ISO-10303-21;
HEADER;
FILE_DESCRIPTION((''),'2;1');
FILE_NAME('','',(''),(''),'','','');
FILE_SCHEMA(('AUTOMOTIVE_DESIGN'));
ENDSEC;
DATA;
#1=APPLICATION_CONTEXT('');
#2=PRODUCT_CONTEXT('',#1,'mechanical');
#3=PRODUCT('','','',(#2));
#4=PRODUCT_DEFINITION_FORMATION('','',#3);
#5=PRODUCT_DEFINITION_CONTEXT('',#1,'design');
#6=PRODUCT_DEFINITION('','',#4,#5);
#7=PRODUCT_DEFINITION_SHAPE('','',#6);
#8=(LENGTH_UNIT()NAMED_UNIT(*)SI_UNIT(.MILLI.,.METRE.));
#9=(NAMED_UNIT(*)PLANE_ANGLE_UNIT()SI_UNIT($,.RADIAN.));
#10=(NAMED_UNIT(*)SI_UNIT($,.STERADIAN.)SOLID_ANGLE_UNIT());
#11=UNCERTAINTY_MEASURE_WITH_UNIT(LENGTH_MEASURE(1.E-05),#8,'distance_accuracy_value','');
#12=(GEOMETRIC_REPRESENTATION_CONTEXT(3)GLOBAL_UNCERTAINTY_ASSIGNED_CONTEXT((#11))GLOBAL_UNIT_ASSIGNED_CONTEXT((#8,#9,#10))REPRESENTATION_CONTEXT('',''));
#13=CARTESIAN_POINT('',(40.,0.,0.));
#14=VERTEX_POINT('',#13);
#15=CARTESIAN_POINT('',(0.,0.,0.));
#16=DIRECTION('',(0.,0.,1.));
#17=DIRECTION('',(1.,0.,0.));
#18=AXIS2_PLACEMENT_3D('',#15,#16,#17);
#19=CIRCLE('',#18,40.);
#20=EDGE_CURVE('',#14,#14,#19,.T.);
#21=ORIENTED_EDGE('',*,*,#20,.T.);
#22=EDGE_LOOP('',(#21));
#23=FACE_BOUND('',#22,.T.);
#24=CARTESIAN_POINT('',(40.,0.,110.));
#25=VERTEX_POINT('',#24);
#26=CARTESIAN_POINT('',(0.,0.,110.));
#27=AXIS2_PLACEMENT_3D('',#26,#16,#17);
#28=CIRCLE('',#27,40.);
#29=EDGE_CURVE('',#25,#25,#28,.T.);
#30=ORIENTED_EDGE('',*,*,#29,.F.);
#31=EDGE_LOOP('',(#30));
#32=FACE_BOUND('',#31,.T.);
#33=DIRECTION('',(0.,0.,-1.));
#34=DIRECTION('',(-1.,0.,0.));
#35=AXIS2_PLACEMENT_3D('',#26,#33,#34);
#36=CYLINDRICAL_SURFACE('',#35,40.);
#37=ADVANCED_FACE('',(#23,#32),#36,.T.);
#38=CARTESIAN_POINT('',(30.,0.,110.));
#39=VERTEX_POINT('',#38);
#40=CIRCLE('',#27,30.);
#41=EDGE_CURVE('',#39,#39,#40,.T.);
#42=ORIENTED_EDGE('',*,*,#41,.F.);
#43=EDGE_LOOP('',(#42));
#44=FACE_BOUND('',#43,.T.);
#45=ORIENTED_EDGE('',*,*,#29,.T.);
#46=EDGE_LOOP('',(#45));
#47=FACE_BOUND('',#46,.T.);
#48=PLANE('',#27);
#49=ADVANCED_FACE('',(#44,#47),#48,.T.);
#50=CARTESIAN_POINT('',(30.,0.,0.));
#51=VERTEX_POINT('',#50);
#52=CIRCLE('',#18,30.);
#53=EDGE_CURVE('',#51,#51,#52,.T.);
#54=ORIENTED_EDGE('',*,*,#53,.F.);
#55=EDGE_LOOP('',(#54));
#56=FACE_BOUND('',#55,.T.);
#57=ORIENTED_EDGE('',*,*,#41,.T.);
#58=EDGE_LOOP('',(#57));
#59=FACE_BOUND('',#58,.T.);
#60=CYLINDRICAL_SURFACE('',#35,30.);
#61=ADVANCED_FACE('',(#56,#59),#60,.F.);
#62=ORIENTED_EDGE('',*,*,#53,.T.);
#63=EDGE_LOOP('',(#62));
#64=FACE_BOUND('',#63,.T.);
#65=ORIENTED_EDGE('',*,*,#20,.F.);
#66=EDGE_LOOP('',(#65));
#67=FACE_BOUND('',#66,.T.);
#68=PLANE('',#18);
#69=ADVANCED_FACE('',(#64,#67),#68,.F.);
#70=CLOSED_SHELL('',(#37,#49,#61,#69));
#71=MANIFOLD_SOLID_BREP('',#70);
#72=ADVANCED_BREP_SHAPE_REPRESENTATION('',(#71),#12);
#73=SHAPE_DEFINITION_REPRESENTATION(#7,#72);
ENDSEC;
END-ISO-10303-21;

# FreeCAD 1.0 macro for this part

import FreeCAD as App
import Part
import Sketcher

V = App.Vector
Q = App.Units.Quantity

doc = App.newDocument("Part")
body = doc.addObject("PartDesign::Body", "Body")

sketch1 = body.newObject("Sketcher::SketchObject", "Sketch")
sketch1.AttachmentSupport = (doc.getObject("XY_Plane"), [""])
sketch1.MapMode = "FlatFace"
sketch1.addGeometry([
    Part.Circle(V(0, 0, 0), V(0, 0, 1), 40),
    Part.Circle(V(0, 0, 0), V(0, 0, 1), 30),
], False)
sketch1.addConstraint([
    Sketcher.Constraint("Coincident", 0, 3, -1, 1),
    Sketcher.Constraint("Coincident", 1, 3, -1, 1),
    Sketcher.Constraint("Diameter", 0, Q("80 mm")),
    Sketcher.Constraint("Diameter", 1, Q("60 mm")),
])
pad1 = body.newObject("PartDesign::Pad", "Pad")
pad1.Profile = sketch1
pad1.Length = 110

doc.recompute()
